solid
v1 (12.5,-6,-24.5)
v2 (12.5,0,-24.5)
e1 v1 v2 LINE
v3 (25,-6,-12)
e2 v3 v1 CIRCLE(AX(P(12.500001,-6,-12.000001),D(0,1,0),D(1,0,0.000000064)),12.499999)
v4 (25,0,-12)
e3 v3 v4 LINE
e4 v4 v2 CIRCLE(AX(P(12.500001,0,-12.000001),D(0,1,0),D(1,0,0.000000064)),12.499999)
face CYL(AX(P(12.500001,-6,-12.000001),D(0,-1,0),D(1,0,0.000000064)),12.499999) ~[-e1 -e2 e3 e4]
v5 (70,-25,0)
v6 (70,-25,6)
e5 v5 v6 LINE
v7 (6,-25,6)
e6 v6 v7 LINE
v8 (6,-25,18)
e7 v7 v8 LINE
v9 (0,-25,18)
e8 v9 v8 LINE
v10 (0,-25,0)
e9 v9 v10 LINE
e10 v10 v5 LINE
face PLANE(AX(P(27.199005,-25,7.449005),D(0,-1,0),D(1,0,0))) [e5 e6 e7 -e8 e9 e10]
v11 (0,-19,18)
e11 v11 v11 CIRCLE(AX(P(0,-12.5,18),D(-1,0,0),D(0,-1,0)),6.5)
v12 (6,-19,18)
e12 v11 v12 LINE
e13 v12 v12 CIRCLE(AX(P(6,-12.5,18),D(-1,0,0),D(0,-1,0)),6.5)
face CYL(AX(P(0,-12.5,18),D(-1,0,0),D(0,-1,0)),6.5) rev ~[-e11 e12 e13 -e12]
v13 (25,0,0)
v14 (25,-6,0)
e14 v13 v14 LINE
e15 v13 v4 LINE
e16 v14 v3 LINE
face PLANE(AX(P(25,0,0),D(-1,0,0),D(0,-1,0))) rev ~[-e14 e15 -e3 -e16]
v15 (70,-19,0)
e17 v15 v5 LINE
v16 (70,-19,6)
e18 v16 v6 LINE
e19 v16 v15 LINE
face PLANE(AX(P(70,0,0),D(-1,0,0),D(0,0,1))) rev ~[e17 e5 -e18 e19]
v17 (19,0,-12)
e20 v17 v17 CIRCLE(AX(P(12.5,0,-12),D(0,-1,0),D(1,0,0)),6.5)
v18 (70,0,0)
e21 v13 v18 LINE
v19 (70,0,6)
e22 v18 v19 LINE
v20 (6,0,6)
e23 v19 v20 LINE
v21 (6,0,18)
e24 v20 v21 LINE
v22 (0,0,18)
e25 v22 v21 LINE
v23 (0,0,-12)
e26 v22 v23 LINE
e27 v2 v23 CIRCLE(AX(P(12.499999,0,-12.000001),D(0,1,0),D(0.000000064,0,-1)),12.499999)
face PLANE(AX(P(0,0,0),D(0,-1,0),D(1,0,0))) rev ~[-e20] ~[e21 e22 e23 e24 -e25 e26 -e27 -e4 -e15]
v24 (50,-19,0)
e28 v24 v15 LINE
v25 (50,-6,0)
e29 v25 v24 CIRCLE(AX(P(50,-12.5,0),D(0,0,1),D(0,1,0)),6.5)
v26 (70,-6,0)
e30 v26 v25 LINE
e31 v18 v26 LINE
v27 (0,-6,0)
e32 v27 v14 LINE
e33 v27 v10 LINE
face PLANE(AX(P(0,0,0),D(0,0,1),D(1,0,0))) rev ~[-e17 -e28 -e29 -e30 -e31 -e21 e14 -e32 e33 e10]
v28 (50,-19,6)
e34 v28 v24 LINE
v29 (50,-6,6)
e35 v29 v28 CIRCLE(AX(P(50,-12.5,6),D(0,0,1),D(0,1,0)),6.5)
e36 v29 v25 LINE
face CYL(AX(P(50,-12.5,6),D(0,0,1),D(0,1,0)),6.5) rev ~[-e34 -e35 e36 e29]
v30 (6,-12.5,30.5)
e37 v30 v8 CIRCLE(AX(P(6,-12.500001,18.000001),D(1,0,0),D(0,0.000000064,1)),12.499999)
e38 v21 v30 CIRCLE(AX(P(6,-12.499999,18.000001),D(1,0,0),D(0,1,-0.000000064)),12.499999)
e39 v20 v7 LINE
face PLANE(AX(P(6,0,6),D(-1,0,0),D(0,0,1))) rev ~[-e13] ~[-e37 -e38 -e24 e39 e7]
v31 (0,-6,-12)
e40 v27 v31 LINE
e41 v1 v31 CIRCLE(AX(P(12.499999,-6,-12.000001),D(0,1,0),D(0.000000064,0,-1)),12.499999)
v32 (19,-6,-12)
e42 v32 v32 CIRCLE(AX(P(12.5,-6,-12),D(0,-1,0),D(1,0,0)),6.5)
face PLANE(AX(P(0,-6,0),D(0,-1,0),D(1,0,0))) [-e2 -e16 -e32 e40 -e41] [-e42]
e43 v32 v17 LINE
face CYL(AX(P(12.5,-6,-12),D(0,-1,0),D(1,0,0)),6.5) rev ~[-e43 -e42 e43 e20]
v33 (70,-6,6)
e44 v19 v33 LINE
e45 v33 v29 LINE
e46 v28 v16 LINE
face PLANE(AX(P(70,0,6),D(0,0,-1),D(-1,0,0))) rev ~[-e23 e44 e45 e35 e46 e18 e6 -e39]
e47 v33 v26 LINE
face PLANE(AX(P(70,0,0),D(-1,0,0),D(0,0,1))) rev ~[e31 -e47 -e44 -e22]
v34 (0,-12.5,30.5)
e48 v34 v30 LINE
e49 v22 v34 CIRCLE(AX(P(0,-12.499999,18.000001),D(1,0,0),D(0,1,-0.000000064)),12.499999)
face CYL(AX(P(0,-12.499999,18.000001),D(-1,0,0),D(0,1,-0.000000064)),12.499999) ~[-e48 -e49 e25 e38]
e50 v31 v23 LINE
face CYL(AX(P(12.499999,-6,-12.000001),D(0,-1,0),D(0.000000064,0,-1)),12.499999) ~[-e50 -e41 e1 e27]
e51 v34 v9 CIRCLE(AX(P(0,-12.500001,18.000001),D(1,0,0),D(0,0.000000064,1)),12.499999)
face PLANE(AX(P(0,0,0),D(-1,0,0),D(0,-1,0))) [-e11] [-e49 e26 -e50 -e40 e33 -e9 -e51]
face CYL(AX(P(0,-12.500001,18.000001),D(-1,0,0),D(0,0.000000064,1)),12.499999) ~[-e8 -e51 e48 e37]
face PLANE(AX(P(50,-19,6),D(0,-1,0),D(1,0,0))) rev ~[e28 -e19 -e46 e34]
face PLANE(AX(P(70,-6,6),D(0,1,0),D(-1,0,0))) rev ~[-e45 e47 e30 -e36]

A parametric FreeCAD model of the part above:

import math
import FreeCAD as App
import Part
import Sketcher

V = App.Vector
Q = App.Units.Quantity


def add_polygon(sketch, points):
    """Adds a closed chain of lines whose ends are joined by coincident constraints."""
    first, n = sketch.GeometryCount, len(points)
    for a, b in zip(points, points[1:] + points[:1]):
        sketch.addGeometry(Part.LineSegment(App.Vector(*a, 0), App.Vector(*b, 0)), False)
    for i in range(n):
        sketch.addConstraint(Sketcher.Constraint("Coincident", first + i, 2, first + (i + 1) % n, 1))

doc = App.newDocument("Part")
params = doc.addObject("Spreadsheet::Sheet", "Params")
for row, (alias, value) in enumerate([
    ("sketch1_width", "70 mm"),
    ("sketch1_width2", "64 mm"),
    ("sketch1_height", "30.5 mm"),
    ("pad1_length", "25 mm"),
    ("sketch2_radius", "6.5 mm"),
    ("sketch2_width", "20 mm"),
    ("pocket1_length", "6 mm"),
    ("sketch3_radius", "12.499999 mm"),
    ("pocket2_length", "6 mm"),
    ("sketch4_diameter", "13 mm"),
    ("pocket3_length", "6 mm"),
    ("sketch5_width", "25 mm"),
    ("sketch5_height", "6 mm"),
    ("pad2_length", "24.5 mm"),
    ("sketch6_diameter", "13 mm"),
    ("sketch6_radius", "12.499999 mm"),
    ("pocket4_length", "6 mm"),
], start=1):
    params.set(f"A{row}", alias)
    params.set(f"B{row}", "=" + value)
    params.setAlias(f"B{row}", alias)

body = doc.addObject("PartDesign::Body", "Body")

# Sketch on XZ plane
sketch1 = body.newObject("Sketcher::SketchObject", "Sketch")
sketch1.AttachmentSupport = (doc.getObject("XZ_Plane"), [""])
sketch1.MapMode = "FlatFace"
add_polygon(sketch1, [(0, 30), (0, 0), (70, 0), (70, 6), (6, 6), (6, 30)])  # lines 0-5
sketch1.addConstraint(Sketcher.Constraint("Vertical", 0))
sketch1.addConstraint(Sketcher.Constraint("Horizontal", 1))
sketch1.addConstraint(Sketcher.Constraint("Vertical", 2))
sketch1.addConstraint(Sketcher.Constraint("Horizontal", 3))
sketch1.addConstraint(Sketcher.Constraint("Vertical", 4))
sketch1.addConstraint(Sketcher.Constraint("Horizontal", 5))
sketch1.addConstraint(Sketcher.Constraint("Coincident", 0, 2, -1, 1))
sketch1.addConstraint(Sketcher.Constraint("Equal", 5, 2))
sketch1.addConstraint(Sketcher.Constraint("DistanceX", 1, 1, 1, 2, Q("70 mm")))
sketch1.addConstraint(Sketcher.Constraint("DistanceX", 3, 2, 3, 1, Q("64 mm")))
sketch1.addConstraint(Sketcher.Constraint("DistanceY", 0, 2, 0, 1, Q("30.5 mm")))
sketch1.setExpression("Constraints[14]", "Params.sketch1_width")
sketch1.setExpression("Constraints[15]", "Params.sketch1_width2")
sketch1.setExpression("Constraints[16]", "Params.sketch1_height")
pad1 = body.newObject("PartDesign::Pad", "Pad")
pad1.Profile = sketch1
pad1.setExpression("Length", "Params.pad1_length")

# Sketch on XY plane
sketch2 = body.newObject("Sketcher::SketchObject", "Sketch001")
sketch2.AttachmentSupport = (doc.getObject("XY_Plane"), [""])
sketch2.MapMode = "FlatFace"
sketch2.AttachmentOffset = App.Placement(V(0, 0, 6), App.Rotation())
sketch2.addGeometry(Part.LineSegment(V(70, -19, 0), V(70, -6, 0)), False)
sketch2.addGeometry(Part.LineSegment(V(70, -6, 0), V(50, -6, 0)), False)
sketch2.addGeometry(Part.ArcOfCircle(Part.Circle(V(50, -12, 0), V(0, 0, 1), 6), math.radians(90), math.radians(270)), False)
sketch2.addGeometry(Part.LineSegment(V(50, -19, 0), V(70, -19, 0)), False)
sketch2.addConstraint(Sketcher.Constraint("Coincident", 0, 2, 1, 1))
sketch2.addConstraint(Sketcher.Constraint("Tangent", 1, 2, 2, 1))
sketch2.addConstraint(Sketcher.Constraint("Tangent", 2, 2, 3, 1))
sketch2.addConstraint(Sketcher.Constraint("Coincident", 3, 2, 0, 1))
sketch2.addConstraint(Sketcher.Constraint("Vertical", 0))
sketch2.addConstraint(Sketcher.Constraint("Horizontal", 1))
sketch2.addConstraint(Sketcher.Constraint("Horizontal", 3))
sketch2.addConstraint(Sketcher.Constraint("Radius", 2, Q("6.5 mm")))
sketch2.addConstraint(Sketcher.Constraint("DistanceX", 1, 2, 1, 1, Q("20 mm")))
sketch2.addConstraint(Sketcher.Constraint("DistanceX", -1, 1, 2, 3, Q("50 mm")))
sketch2.addConstraint(Sketcher.Constraint("DistanceY", 0, 2, -1, 1, Q("6 mm")))
sketch2.setExpression("Constraints[7]", "Params.sketch2_radius")
sketch2.setExpression("Constraints[8]", "Params.sketch2_width")
pocket1 = body.newObject("PartDesign::Pocket", "Pocket")
pocket1.Profile = sketch2
pocket1.setExpression("Length", "Params.pocket1_length")

# Sketch on YZ plane
sketch3 = body.newObject("Sketcher::SketchObject", "Sketch002")
sketch3.AttachmentSupport = (doc.getObject("YZ_Plane"), [""])
sketch3.MapMode = "FlatFace"
sketch3.addGeometry(Part.ArcOfCircle(Part.Circle(V(-13, 18, 0), V(0, 0, 1), 12), math.radians(90), math.radians(180)), False)
sketch3.addGeometry(Part.LineSegment(V(-25, 18, 0), V(-25, 30, 0)), False)
sketch3.addGeometry(Part.LineSegment(V(-25, 30, 0), V(-12, 30, 0)), False)
sketch3.addGeometry(Part.ArcOfCircle(Part.Circle(V(-12, 18, 0), V(0, 0, 1), 12), math.radians(0), math.radians(90)), False)
sketch3.addGeometry(Part.LineSegment(V(-12, 30, 0), V(0, 30, 0)), False)
sketch3.addGeometry(Part.LineSegment(V(0, 30, 0), V(0, 18, 0)), False)
sketch3.addConstraint(Sketcher.Constraint("Tangent", 0, 2, 1, 1))
sketch3.addConstraint(Sketcher.Constraint("Coincident", 1, 2, 2, 1))
sketch3.addConstraint(Sketcher.Constraint("Tangent", 2, 2, 0, 1))
sketch3.addConstraint(Sketcher.Constraint("Tangent", 3, 2, 4, 1))
sketch3.addConstraint(Sketcher.Constraint("Coincident", 4, 2, 5, 1))
sketch3.addConstraint(Sketcher.Constraint("Tangent", 5, 2, 3, 1))
sketch3.addConstraint(Sketcher.Constraint("Vertical", 1))
sketch3.addConstraint(Sketcher.Constraint("Horizontal", 2))
sketch3.addConstraint(Sketcher.Constraint("Horizontal", 4))
sketch3.addConstraint(Sketcher.Constraint("Vertical", 5))
sketch3.addConstraint(Sketcher.Constraint("Coincident", 3, 3, 0, 3))
sketch3.addConstraint(Sketcher.Constraint("Equal", 0, 3))
sketch3.addConstraint(Sketcher.Constraint("PointOnObject", 4, 2, -2))
sketch3.addConstraint(Sketcher.Constraint("Radius", 0, Q("12.499999 mm")))
sketch3.addConstraint(Sketcher.Constraint("DistanceY", -1, 1, 0, 3, Q("18.000001 mm")))
sketch3.setExpression("Constraints[13]", "Params.sketch3_radius")
pocket2 = body.newObject("PartDesign::Pocket", "Pocket001")
pocket2.Profile = sketch3
pocket2.setExpression("Length", "Params.pocket2_length")
pocket2.Reversed = True

# Sketch on YZ plane
sketch4 = body.newObject("Sketcher::SketchObject", "Sketch003")
sketch4.AttachmentSupport = (doc.getObject("YZ_Plane"), [""])
sketch4.MapMode = "FlatFace"
sketch4.addGeometry(Part.Circle(V(-12, 18, 0), V(0, 0, 1), 6), False)
sketch4.addConstraint(Sketcher.Constraint("Diameter", 0, Q("13 mm")))
sketch4.addConstraint(Sketcher.Constraint("DistanceY", -1, 1, 0, 3, Q("18 mm")))
sketch4.addConstraint(Sketcher.Constraint("DistanceX", 0, 3, -1, 1, Q("12.5 mm")))
sketch4.setExpression("Constraints[0]", "Params.sketch4_diameter")
pocket3 = body.newObject("PartDesign::Pocket", "Pocket002")
pocket3.Profile = sketch4
pocket3.setExpression("Length", "Params.pocket3_length")
pocket3.Reversed = True

# Sketch on XY plane
sketch5 = body.newObject("Sketcher::SketchObject", "Sketch004")
sketch5.AttachmentSupport = (doc.getObject("XY_Plane"), [""])
sketch5.MapMode = "FlatFace"
add_polygon(sketch5, [(0, -6), (0, 0), (25, 0), (25, -6)])  # lines 0-3
sketch5.addConstraint(Sketcher.Constraint("Vertical", 0))
sketch5.addConstraint(Sketcher.Constraint("Horizontal", 1))
sketch5.addConstraint(Sketcher.Constraint("Vertical", 2))
sketch5.addConstraint(Sketcher.Constraint("Horizontal", 3))
sketch5.addConstraint(Sketcher.Constraint("Coincident", 0, 2, -1, 1))
sketch5.addConstraint(Sketcher.Constraint("DistanceX", 1, 1, 1, 2, Q("25 mm")))
sketch5.addConstraint(Sketcher.Constraint("DistanceY", 0, 1, 0, 2, Q("6 mm")))
sketch5.setExpression("Constraints[9]", "Params.sketch5_width")
sketch5.setExpression("Constraints[10]", "Params.sketch5_height")
pad2 = body.newObject("PartDesign::Pad", "Pad001")
pad2.Profile = sketch5
pad2.setExpression("Length", "Params.pad2_length")
pad2.Reversed = True

# Sketch on XZ plane
sketch6 = body.newObject("Sketcher::SketchObject", "Sketch005")
sketch6.AttachmentSupport = (doc.getObject("XZ_Plane"), [""])
sketch6.MapMode = "FlatFace"
sketch6.AttachmentOffset = App.Placement(V(0, 0, 6), App.Rotation())
sketch6.addGeometry(Part.ArcOfCircle(Part.Circle(V(12, -12, 0), V(0, 0, 1), 12), math.radians(180), math.radians(270)), False)
sketch6.addGeometry(Part.LineSegment(V(0, -12, 0), V(0, -24, 0)), False)
sketch6.addGeometry(Part.LineSegment(V(0, -24, 0), V(12, -24, 0)), False)
sketch6.addGeometry(Part.ArcOfCircle(Part.Circle(V(13, -12, 0), V(0, 0, 1), 12), math.radians(-90), math.radians(0)), False)
sketch6.addGeometry(Part.LineSegment(V(12, -24, 0), V(25, -24, 0)), False)
sketch6.addGeometry(Part.LineSegment(V(25, -24, 0), V(25, -12, 0)), False)
sketch6.addGeometry(Part.Circle(V(12, -12, 0), V(0, 0, 1), 6), False)
sketch6.addConstraint(Sketcher.Constraint("Tangent", 0, 1, 1, 1))
sketch6.addConstraint(Sketcher.Constraint("Coincident", 1, 2, 2, 1))
sketch6.addConstraint(Sketcher.Constraint("Tangent", 2, 2, 0, 2))
sketch6.addConstraint(Sketcher.Constraint("Tangent", 3, 1, 4, 1))
sketch6.addConstraint(Sketcher.Constraint("Coincident", 4, 2, 5, 1))
sketch6.addConstraint(Sketcher.Constraint("Tangent", 5, 2, 3, 2))
sketch6.addConstraint(Sketcher.Constraint("Vertical", 1))
sketch6.addConstraint(Sketcher.Constraint("Horizontal", 2))
sketch6.addConstraint(Sketcher.Constraint("Horizontal", 4))
sketch6.addConstraint(Sketcher.Constraint("Vertical", 5))
sketch6.addConstraint(Sketcher.Constraint("Coincident", 3, 3, 0, 3))
sketch6.addConstraint(Sketcher.Constraint("Coincident", 6, 3, 0, 3))
sketch6.addConstraint(Sketcher.Constraint("Equal", 0, 3))
sketch6.addConstraint(Sketcher.Constraint("PointOnObject", 0, 1, -2))
sketch6.addConstraint(Sketcher.Constraint("Diameter", 6, Q("13 mm")))
sketch6.addConstraint(Sketcher.Constraint("Radius", 0, Q("12.499999 mm")))
sketch6.addConstraint(Sketcher.Constraint("DistanceY", 0, 3, -1, 1, Q("12.000001 mm")))
sketch6.setExpression("Constraints[14]", "Params.sketch6_diameter")
sketch6.setExpression("Constraints[15]", "Params.sketch6_radius")
pocket4 = body.newObject("PartDesign::Pocket", "Pocket003")
pocket4.Profile = sketch6
pocket4.setExpression("Length", "Params.pocket4_length")

doc.recompute()
